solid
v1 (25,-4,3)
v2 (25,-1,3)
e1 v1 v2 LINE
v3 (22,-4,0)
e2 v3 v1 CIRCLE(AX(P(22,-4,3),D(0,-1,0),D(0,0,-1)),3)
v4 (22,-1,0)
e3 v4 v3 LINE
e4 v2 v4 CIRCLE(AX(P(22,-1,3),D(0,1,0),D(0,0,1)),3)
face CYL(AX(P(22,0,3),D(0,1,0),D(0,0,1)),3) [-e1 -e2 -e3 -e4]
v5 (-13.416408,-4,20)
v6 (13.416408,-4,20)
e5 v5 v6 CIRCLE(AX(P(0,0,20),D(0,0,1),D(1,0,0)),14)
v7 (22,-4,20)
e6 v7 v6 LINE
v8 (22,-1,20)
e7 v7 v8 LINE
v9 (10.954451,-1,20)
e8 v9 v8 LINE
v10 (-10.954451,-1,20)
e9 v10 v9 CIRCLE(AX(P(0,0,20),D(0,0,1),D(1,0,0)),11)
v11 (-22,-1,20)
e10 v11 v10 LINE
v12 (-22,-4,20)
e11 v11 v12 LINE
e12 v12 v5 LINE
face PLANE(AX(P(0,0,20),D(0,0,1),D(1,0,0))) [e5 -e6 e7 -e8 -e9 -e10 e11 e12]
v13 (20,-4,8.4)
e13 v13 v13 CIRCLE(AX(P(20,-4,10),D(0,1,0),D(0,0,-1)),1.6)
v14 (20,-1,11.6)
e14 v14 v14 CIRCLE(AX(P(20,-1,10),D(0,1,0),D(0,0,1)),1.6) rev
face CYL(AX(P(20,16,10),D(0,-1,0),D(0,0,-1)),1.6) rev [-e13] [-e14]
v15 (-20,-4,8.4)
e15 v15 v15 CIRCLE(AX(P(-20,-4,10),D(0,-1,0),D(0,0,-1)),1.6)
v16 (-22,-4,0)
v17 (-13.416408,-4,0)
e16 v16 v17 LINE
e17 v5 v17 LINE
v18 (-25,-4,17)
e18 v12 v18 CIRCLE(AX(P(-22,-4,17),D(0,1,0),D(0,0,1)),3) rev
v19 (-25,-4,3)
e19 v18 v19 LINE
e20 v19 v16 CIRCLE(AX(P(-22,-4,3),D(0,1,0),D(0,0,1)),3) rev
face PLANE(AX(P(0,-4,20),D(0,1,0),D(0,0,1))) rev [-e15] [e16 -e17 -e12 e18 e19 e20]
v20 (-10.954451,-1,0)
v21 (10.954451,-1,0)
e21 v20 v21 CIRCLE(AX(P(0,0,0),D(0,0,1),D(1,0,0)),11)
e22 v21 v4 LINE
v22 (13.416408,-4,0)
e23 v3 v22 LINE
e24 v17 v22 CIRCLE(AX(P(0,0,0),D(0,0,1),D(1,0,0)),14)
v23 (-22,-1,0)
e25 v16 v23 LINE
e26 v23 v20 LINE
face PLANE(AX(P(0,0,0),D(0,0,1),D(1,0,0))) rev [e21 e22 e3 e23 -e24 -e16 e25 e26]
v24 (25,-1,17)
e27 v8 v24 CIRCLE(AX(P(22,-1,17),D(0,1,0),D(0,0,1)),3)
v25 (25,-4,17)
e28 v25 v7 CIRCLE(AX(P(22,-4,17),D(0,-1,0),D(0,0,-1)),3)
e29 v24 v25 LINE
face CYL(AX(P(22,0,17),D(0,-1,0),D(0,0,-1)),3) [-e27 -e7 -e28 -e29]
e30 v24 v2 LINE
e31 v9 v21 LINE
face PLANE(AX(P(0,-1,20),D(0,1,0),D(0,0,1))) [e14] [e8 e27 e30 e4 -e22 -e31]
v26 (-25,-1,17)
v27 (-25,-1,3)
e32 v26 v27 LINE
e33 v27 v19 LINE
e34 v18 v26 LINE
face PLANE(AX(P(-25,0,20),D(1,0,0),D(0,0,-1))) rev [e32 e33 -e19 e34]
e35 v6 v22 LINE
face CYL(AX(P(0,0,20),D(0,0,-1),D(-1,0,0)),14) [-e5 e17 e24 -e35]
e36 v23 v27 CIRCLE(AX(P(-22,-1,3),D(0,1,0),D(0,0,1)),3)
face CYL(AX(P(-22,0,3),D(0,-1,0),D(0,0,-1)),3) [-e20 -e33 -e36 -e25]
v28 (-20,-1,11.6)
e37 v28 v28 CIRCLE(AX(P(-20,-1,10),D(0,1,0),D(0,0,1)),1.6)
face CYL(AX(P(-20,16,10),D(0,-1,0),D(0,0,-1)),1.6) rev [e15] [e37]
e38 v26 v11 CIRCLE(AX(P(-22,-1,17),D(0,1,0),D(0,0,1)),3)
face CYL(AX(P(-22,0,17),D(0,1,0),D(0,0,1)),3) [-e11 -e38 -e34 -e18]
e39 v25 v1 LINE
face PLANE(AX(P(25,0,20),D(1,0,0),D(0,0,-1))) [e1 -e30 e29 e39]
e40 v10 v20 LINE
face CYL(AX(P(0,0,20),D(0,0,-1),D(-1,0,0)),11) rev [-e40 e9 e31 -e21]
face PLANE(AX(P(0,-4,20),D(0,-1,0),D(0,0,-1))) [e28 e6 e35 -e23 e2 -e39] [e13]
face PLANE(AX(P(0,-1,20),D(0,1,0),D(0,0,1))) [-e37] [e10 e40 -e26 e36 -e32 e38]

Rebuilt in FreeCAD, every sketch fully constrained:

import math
import FreeCAD as App
import Part
import Sketcher
from FreeCAD import Vector


def edges_at(feature, points):
    """Names of the edges that pass closest to the given points."""
    edges = feature.Shape.Edges
    near = lambda p: min(range(len(edges)), key=lambda i: edges[i].distToShape(Part.Vertex(*p))[0])
    return sorted({f"Edge{near(p) + 1}" for p in points})

doc = App.newDocument("Part")
body = doc.addObject("PartDesign::Body", "Body")

# Sketch on XY plane
sketch1 = body.newObject("Sketcher::SketchObject", "Sketch")
sketch1.AttachmentSupport = (doc.getObject("XY_Plane"), [""])
sketch1.MapMode = "FlatFace"
sketch1.addGeometry([
    Part.LineSegment(Vector(-11, -1, 0), Vector(-25, -1, 0)),  # 0
    Part.LineSegment(Vector(-25, -1, 0), Vector(-25, -4, 0)),  # 1
    Part.LineSegment(Vector(-25, -4, 0), Vector(-13.4, -4, 0)),  # 2
    Part.ArcOfCircle(Part.Circle(Vector(0, 0, 0), Vector(0, 0, 1), 14), math.radians(-163), math.radians(-17)),  # 3
    Part.LineSegment(Vector(13.4, -4, 0), Vector(25, -4, 0)),  # 4
    Part.LineSegment(Vector(25, -4, 0), Vector(25, -1, 0)),  # 5
    Part.LineSegment(Vector(25, -1, 0), Vector(11, -1, 0)),  # 6
    Part.ArcOfCircle(Part.Circle(Vector(0, 0, 0), Vector(0, 0, 1), 11), math.radians(-175), math.radians(-5)),  # 7
], False)
sketch1.addConstraint([
    Sketcher.Constraint("Coincident", 0, 2, 1, 1),
    Sketcher.Constraint("Coincident", 1, 2, 2, 1),
    Sketcher.Constraint("Coincident", 2, 2, 3, 1),
    Sketcher.Constraint("Coincident", 3, 2, 4, 1),
    Sketcher.Constraint("Coincident", 4, 2, 5, 1),
    Sketcher.Constraint("Coincident", 5, 2, 6, 1),
    Sketcher.Constraint("Coincident", 6, 2, 7, 2),
    Sketcher.Constraint("Coincident", 7, 1, 0, 1),
    Sketcher.Constraint("Horizontal", 0),
    Sketcher.Constraint("Vertical", 1),
    Sketcher.Constraint("Horizontal", 2),
    Sketcher.Constraint("Horizontal", 4),
    Sketcher.Constraint("Vertical", 5),
    Sketcher.Constraint("Horizontal", 6),
    Sketcher.Constraint("Coincident", 3, 3, -1, 1),
    Sketcher.Constraint("Coincident", 7, 3, -1, 1),
    Sketcher.Constraint("Symmetric", 1, 2, 4, 2, -2),
    Sketcher.Constraint("Horizontal", 0, 2, 5, 2),
    Sketcher.Constraint("Radius", 3, 14.0),
    Sketcher.Constraint("Radius", 7, 11.0),
    Sketcher.Constraint("DistanceY", 1, 2, 1, 1, 3.0),
    Sketcher.Constraint("DistanceX", 0, 2, -1, 1, 25.0),
    Sketcher.Constraint("DistanceY", 0, 2, -1, 1, 1.0),
])
pad1 = body.newObject("PartDesign::Pad", "Pad")
pad1.Profile = sketch1
pad1.Length = 20

# Sketch on XZ plane
sketch2 = body.newObject("Sketcher::SketchObject", "Sketch001")
sketch2.AttachmentSupport = (doc.getObject("XZ_Plane"), [""])
sketch2.MapMode = "FlatFace"
sketch2.AttachmentOffset = App.Placement(Vector(0, 0, 4), App.Rotation())
sketch2.addGeometry(Part.Circle(Vector(-20, 10, 0), Vector(0, 0, 1), 1.6), False)
sketch2.addConstraint([
    Sketcher.Constraint("Diameter", 0, 3.2),
    Sketcher.Constraint("DistanceX", 0, 3, -1, 1, 20.0),
    Sketcher.Constraint("DistanceY", -1, 1, 0, 3, 10.0),
])
pocket1 = body.newObject("PartDesign::Pocket", "Pocket")
pocket1.Profile = sketch2
pocket1.Length = 20
doc.recompute()

mirrored = body.newObject("PartDesign::Mirrored", "Mirrored")
mirrored.Originals = [pocket1]
mirrored.MirrorPlane = (doc.getObject("YZ_Plane"), [""])
body.Tip = mirrored
doc.recompute()

fillet = body.newObject("PartDesign::Fillet", "Fillet")
fillet.Base = (mirrored, edges_at(mirrored, [
    (-25, -2.5, 0),
    (-25, -2.5, 20),
    (25, -2.5, 20),
    (25, -2.5, 0),
]))
fillet.Radius = 3

doc.recompute()
